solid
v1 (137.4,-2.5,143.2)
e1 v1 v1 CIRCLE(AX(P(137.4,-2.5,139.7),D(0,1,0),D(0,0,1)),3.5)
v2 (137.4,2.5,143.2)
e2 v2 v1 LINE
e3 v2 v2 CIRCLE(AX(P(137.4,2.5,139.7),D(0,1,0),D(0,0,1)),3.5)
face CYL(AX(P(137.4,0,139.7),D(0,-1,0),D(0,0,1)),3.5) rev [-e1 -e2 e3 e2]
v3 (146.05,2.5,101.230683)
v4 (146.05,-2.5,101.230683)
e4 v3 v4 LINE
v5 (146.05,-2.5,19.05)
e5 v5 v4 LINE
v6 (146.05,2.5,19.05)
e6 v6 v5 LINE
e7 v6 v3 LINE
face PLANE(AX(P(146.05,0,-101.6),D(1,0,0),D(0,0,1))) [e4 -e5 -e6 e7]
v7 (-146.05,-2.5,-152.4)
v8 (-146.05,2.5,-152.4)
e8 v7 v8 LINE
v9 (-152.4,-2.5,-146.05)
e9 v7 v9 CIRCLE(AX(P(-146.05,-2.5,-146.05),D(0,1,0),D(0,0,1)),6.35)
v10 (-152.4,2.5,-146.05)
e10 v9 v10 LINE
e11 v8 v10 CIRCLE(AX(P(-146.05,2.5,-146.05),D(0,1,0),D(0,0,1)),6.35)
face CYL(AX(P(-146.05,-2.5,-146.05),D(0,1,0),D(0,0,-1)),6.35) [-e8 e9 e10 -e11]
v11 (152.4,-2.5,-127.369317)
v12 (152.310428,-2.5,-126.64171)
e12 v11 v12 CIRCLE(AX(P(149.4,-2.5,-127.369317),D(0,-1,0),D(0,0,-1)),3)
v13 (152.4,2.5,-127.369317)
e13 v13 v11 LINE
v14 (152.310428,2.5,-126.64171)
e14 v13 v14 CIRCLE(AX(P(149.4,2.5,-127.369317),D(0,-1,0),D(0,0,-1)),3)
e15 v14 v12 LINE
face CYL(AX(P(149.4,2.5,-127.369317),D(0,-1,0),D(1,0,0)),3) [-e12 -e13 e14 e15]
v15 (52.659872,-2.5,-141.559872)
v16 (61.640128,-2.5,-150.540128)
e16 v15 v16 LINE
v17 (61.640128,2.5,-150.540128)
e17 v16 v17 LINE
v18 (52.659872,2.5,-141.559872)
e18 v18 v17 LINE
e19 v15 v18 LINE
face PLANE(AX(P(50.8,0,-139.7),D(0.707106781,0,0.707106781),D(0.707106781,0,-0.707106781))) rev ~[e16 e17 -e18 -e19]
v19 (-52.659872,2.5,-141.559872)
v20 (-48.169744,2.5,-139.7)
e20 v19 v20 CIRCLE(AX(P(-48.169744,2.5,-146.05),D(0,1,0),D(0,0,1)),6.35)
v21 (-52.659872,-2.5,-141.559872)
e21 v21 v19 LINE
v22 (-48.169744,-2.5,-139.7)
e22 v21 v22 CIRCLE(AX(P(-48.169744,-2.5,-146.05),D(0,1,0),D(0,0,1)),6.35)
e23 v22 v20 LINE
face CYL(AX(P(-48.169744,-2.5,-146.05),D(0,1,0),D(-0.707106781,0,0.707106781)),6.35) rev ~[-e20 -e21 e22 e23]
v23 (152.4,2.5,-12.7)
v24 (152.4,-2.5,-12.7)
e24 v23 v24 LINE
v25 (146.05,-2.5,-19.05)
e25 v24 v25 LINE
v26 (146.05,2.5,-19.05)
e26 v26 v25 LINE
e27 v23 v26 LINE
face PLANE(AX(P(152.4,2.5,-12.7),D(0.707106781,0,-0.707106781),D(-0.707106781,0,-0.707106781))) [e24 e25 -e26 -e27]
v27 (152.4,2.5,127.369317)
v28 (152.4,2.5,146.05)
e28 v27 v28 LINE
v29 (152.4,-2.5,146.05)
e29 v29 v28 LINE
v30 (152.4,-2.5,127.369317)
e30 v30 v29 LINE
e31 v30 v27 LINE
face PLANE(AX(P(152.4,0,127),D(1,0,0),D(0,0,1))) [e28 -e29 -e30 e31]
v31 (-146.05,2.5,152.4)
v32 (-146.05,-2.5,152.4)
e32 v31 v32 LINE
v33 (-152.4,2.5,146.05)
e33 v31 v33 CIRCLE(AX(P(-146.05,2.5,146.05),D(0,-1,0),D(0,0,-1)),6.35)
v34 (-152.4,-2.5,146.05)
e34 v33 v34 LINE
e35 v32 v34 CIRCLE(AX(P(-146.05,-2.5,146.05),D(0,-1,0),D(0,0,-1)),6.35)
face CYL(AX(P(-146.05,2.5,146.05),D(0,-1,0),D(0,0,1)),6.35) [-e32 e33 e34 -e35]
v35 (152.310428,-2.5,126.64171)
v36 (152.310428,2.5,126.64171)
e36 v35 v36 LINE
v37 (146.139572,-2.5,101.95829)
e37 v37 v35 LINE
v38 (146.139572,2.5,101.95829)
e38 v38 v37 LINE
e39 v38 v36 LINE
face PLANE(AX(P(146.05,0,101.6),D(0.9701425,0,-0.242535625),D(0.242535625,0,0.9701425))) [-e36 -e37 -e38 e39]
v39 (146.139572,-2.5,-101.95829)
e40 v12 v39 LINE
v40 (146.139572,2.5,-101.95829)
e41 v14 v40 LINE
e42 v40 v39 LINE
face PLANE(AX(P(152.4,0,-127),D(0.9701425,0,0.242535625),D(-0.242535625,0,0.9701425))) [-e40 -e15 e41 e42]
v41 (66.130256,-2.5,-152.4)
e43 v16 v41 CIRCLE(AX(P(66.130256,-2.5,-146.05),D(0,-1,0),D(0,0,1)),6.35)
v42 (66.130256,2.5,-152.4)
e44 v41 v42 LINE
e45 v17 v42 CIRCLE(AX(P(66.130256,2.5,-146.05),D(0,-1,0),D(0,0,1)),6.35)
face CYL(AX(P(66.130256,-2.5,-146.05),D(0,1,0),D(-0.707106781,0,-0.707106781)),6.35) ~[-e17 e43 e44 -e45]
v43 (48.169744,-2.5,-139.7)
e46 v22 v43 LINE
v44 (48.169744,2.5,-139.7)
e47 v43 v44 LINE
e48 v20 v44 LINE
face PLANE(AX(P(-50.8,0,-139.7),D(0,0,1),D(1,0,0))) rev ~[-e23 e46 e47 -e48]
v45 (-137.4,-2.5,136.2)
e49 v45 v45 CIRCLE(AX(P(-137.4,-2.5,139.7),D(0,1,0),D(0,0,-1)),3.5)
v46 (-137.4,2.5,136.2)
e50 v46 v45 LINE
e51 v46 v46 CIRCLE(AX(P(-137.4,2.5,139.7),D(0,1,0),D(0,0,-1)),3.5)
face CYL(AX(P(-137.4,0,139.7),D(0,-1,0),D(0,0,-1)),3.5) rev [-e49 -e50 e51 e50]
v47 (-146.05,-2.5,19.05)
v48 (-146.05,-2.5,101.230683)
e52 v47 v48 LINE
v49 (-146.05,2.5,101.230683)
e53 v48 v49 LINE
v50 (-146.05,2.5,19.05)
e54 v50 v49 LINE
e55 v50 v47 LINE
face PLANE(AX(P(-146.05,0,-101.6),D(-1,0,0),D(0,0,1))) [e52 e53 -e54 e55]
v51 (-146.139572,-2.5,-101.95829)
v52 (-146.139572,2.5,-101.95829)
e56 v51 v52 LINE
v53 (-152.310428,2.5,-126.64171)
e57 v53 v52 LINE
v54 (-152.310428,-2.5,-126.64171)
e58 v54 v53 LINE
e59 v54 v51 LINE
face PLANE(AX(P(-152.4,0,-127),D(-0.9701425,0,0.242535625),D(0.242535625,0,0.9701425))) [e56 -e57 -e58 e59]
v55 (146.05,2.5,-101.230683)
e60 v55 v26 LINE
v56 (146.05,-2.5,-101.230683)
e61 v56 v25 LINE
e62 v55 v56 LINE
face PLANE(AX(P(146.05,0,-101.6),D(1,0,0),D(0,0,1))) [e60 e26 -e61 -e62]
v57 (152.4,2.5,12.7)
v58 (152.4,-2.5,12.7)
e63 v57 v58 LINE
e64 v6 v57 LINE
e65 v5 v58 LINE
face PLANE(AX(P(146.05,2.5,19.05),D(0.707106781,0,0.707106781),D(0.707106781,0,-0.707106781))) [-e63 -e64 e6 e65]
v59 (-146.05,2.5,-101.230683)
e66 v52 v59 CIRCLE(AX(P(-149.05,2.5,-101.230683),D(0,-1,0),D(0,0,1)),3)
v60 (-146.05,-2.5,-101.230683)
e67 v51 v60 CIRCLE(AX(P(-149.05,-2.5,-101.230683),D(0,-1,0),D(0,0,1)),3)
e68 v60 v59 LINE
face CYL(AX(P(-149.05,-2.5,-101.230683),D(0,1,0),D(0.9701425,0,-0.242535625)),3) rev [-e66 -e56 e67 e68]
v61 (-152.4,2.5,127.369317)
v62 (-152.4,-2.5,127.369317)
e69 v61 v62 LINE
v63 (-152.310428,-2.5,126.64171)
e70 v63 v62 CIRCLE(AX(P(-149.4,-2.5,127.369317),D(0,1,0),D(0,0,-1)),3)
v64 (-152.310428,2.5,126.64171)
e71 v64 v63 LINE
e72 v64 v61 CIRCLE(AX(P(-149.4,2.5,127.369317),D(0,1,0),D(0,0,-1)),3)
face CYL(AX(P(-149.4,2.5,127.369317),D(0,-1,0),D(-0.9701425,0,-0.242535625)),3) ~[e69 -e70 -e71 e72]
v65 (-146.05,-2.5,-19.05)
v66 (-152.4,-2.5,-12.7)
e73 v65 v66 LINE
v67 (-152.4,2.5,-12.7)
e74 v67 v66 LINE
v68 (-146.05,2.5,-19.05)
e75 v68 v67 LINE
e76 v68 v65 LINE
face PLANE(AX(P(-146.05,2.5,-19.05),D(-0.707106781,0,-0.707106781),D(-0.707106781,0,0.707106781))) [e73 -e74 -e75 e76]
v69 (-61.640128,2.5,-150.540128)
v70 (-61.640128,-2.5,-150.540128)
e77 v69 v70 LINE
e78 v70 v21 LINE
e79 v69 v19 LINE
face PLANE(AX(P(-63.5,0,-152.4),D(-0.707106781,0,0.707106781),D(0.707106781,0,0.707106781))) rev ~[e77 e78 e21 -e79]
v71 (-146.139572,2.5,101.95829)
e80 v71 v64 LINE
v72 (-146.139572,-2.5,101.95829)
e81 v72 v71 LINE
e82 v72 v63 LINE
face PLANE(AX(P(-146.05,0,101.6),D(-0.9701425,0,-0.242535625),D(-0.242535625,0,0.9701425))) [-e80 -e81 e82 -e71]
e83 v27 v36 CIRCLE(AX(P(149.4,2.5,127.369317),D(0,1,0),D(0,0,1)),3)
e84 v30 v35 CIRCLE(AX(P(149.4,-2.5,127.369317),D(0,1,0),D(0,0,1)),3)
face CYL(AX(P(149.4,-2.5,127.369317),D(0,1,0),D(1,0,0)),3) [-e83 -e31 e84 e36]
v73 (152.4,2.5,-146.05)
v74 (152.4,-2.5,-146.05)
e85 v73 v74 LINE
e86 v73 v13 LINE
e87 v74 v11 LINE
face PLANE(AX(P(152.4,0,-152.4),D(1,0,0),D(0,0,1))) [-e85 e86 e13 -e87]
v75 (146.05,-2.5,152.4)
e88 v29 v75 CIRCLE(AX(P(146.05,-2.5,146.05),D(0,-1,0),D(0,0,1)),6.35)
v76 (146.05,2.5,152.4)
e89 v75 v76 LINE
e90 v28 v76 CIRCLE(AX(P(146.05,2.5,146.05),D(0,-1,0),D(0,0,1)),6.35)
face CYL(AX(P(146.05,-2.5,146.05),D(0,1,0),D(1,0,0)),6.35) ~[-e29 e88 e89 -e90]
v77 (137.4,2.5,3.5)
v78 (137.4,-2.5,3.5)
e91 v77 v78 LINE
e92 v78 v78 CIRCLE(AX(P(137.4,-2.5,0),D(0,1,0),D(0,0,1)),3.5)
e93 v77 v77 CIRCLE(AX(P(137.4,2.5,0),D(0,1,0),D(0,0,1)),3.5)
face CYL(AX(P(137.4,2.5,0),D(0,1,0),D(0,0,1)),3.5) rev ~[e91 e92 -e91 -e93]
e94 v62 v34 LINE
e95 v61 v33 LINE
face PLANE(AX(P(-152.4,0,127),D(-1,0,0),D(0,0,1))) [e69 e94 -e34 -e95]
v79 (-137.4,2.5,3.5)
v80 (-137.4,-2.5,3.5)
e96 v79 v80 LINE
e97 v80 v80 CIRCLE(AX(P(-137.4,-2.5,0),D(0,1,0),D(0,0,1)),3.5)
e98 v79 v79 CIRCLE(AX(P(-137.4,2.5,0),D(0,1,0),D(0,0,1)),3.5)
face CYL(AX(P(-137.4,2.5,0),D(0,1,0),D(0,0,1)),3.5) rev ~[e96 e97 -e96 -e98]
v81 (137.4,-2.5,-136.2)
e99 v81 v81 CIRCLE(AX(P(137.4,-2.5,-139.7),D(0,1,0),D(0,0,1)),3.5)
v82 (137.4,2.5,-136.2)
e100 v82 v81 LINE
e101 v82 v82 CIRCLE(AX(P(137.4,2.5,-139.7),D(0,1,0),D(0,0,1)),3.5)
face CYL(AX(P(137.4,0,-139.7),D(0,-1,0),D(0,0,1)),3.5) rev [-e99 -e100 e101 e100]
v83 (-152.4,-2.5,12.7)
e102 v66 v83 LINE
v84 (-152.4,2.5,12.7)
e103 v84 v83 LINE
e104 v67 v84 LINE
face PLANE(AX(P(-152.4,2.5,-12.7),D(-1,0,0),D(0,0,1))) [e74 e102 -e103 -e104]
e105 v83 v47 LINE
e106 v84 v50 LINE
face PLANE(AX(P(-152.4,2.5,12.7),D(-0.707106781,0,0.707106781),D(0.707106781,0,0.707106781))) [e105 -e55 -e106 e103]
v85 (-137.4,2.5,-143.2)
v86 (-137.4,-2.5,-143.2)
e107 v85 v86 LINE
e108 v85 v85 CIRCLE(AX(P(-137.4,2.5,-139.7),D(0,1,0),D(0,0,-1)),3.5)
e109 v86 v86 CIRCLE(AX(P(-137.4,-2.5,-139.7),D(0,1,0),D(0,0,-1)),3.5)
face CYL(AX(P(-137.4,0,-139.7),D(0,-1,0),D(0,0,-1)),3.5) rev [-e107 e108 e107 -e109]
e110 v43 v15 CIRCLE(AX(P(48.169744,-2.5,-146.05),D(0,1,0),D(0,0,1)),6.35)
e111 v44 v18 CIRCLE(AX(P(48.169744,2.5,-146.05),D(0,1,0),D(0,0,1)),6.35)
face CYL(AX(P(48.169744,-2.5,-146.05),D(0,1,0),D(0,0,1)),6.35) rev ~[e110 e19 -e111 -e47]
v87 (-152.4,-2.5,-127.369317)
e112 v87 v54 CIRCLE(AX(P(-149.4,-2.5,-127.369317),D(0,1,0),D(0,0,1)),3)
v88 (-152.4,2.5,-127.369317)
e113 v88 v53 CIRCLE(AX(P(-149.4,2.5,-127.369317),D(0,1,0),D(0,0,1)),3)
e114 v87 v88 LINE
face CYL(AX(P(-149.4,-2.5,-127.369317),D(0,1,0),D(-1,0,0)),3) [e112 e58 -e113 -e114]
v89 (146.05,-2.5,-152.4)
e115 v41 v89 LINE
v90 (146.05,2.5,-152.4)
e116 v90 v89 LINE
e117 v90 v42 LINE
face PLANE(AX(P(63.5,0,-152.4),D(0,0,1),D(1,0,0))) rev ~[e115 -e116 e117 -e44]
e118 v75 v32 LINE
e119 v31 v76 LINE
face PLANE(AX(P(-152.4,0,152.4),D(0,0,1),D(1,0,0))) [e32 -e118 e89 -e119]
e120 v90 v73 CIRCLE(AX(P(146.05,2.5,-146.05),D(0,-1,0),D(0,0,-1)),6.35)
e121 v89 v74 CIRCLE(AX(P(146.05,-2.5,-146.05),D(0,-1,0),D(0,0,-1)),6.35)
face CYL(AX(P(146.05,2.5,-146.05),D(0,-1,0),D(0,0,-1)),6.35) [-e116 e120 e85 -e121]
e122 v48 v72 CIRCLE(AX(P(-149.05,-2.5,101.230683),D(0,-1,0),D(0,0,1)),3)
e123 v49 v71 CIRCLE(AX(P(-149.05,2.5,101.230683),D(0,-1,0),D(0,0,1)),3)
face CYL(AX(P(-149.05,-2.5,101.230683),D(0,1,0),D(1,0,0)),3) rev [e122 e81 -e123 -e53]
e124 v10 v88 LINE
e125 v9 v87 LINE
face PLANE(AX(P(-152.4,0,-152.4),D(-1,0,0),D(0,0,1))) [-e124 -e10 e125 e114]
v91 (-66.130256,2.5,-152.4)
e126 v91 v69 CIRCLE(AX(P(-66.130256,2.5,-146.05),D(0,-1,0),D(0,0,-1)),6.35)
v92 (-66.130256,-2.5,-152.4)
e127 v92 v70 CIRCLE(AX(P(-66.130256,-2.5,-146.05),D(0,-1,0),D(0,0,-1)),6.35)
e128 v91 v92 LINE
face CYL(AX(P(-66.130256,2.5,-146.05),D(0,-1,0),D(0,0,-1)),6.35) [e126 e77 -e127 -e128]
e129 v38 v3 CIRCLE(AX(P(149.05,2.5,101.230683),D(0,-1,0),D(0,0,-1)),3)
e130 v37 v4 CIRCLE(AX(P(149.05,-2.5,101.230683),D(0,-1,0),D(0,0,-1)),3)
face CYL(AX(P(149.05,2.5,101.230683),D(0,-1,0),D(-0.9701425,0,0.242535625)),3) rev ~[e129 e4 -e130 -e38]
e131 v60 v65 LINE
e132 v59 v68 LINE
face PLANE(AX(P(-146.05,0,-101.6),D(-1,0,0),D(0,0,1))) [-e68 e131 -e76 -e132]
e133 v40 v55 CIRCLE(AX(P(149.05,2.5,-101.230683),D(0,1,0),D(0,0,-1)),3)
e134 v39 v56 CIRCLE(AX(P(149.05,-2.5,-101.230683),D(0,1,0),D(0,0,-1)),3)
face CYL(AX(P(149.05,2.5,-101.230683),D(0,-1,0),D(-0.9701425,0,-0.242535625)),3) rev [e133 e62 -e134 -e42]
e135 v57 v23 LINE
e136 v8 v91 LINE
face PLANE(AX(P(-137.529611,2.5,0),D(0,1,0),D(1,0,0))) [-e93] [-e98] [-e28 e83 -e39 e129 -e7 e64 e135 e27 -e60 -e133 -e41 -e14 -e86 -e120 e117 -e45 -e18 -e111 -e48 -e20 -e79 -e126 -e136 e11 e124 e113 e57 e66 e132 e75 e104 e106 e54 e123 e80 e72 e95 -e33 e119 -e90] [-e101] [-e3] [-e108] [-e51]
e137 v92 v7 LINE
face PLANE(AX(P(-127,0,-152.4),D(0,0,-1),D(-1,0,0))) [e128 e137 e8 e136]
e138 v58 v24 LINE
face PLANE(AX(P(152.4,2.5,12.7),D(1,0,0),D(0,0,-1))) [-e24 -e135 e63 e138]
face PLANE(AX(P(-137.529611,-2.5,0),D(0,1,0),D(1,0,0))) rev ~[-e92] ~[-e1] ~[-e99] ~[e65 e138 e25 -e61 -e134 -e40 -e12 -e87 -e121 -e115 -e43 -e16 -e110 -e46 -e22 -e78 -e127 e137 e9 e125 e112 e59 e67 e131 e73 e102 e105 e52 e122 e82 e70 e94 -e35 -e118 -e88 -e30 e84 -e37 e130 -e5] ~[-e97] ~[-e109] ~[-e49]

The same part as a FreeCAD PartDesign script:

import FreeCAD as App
import Part
import Sketcher

V = App.Vector
Q = App.Units.Quantity


def edges_at(feature, points):
    """Names of the edges that pass closest to the given points."""
    edges = feature.Shape.Edges
    near = lambda p: min(range(len(edges)), key=lambda i: edges[i].distToShape(Part.Vertex(*p))[0])
    return sorted({f"Edge{near(p) + 1}" for p in points})


def add_polygon(sketch, points):
    """Adds a closed chain of lines whose ends are joined by coincident constraints."""
    first, n = sketch.GeometryCount, len(points)
    for a, b in zip(points, points[1:] + points[:1]):
        sketch.addGeometry(Part.LineSegment(App.Vector(*a, 0), App.Vector(*b, 0)), False)
    for i in range(n):
        sketch.addConstraint(Sketcher.Constraint("Coincident", first + i, 2, first + (i + 1) % n, 1))

doc = App.newDocument("Part")
body = doc.addObject("PartDesign::Body", "Body")

# Sketch on XZ plane
sketch1 = body.newObject("Sketcher::SketchObject", "Sketch")
sketch1.AttachmentSupport = (doc.getObject("XZ_Plane"), [""])
sketch1.MapMode = "FlatFace"
add_polygon(sketch1, [(127, -152), (64, -152), (51, -140), (-51, -140), (-64, -152), (-127, -152), (-127, 152), (127, 152)])  # lines 0-7
sketch1.addConstraint([
    Sketcher.Constraint("Horizontal", 0),
    Sketcher.Constraint("Horizontal", 2),
    Sketcher.Constraint("Horizontal", 4),
    Sketcher.Constraint("Vertical", 5),
    Sketcher.Constraint("Horizontal", 6),
    Sketcher.Constraint("Vertical", 7),
    Sketcher.Constraint("Symmetric", 4, 2, 6, 2, -1, 1),
    Sketcher.Constraint("Symmetric", 0, 2, 3, 2, -2),
    Sketcher.Constraint("Perpendicular", 1, 3),
    Sketcher.Constraint("Equal", 1, 3),
    Sketcher.Constraint("DistanceX", 2, 2, 2, 1, Q("4 in")),
    Sketcher.Constraint("DistanceX", 6, 1, 6, 2, Q("10 in")),
    Sketcher.Constraint("DistanceY", 5, 1, 5, 2, Q("12 in")),
    Sketcher.Constraint("DistanceX", 0, 2, 0, 1, Q("2.5 in")),
])
pad1 = body.newObject("PartDesign::Pad", "Pad")
pad1.Profile = sketch1
pad1.Length = 5
pad1.Midplane = True

# Sketch on XZ plane
sketch2 = body.newObject("Sketcher::SketchObject", "Sketch001")
sketch2.AttachmentSupport = (doc.getObject("XZ_Plane"), [""])
sketch2.MapMode = "FlatFace"
add_polygon(sketch2, [(152.4, -152.4), (127, -152.4), (127, 152.4), (152.4, 152.4), (152.4, 127), (146.1, 101.6), (146.1, -101.6), (152.4, -127)])  # lines 0-7
sketch2.addGeometry(Part.Circle(V(137.4, 139.7, 0), V(0, 0, 1), 3.5), False)  # 8
sketch2.addGeometry(Part.Circle(V(137.4, -139.7, 0), V(0, 0, 1), 3.5), False)  # 9
add_polygon(sketch2, [(-127, -152.4), (-152.4, -152.4), (-152.4, -127), (-146.1, -101.6), (-146.1, 101.6), (-152.4, 127), (-152.4, 152.4), (-127, 152.4)])  # lines 10-17
sketch2.addGeometry(Part.Circle(V(-137.4, 139.7, 0), V(0, 0, 1), 3.5), False)  # 18
sketch2.addGeometry(Part.Circle(V(-137.4, -139.7, 0), V(0, 0, 1), 3.5), False)  # 19
sketch2.addConstraint([
    Sketcher.Constraint("Horizontal", 0),
    Sketcher.Constraint("Vertical", 1),
    Sketcher.Constraint("Horizontal", 2),
    Sketcher.Constraint("Vertical", 3),
    Sketcher.Constraint("Vertical", 5),
    Sketcher.Constraint("Vertical", 7),
    Sketcher.Constraint("Horizontal", 10),
    Sketcher.Constraint("Vertical", 11),
    Sketcher.Constraint("Vertical", 13),
    Sketcher.Constraint("Vertical", 15),
    Sketcher.Constraint("Horizontal", 16),
    Sketcher.Constraint("Vertical", 17),
    Sketcher.Constraint("Equal", 8, 9),
    Sketcher.Constraint("Equal", 9, 18),
    Sketcher.Constraint("Equal", 18, 19),
    Sketcher.Constraint("Symmetric", 9, 3, 18, 3, -1, 1),
    Sketcher.Constraint("Symmetric", 8, 3, 19, 3, -1, 1),
    Sketcher.Constraint("Symmetric", 2, 2, 10, 2, -1, 1),
    Sketcher.Constraint("Symmetric", 4, 2, 12, 2, -1, 1),
    Sketcher.Constraint("Symmetric", 6, 2, 14, 2, -1, 1),
    Sketcher.Constraint("Symmetric", 0, 2, 16, 2, -1, 1),
    Sketcher.Constraint("Symmetric", 8, 3, 18, 3, -2),
    Sketcher.Constraint("Symmetric", 7, 2, 10, 2, -2),
    Sketcher.Constraint("Parallel", 4, 12),
    Sketcher.Constraint("Parallel", 6, 14),
    Sketcher.Constraint("Horizontal", 6, 2, 11, 2),
    Sketcher.Constraint("Horizontal", 5, 2, 12, 2),
    Sketcher.Constraint("Equal", 16, 3),
    Sketcher.Constraint("DistanceX", 0, 2, 0, 1, Q("1 in")),
    Sketcher.Constraint("DistanceY", 1, 1, 1, 2, Q("12 in")),
    Sketcher.Constraint("DistanceY", 5, 2, 5, 1, Q("8 in")),
    Sketcher.Constraint("DistanceX", -1, 1, 0, 2, Q("5 in")),
    Sketcher.Constraint("DistanceY", 9, 3, 8, 3, Q("11 in")),
    Sketcher.Constraint("Diameter", 8, Q("7 mm")),
    Sketcher.Constraint("DistanceX", -1, 1, 4, 2, Q("5.75 in")),
    Sketcher.Constraint("DistanceX", -1, 1, 8, 3, Q("137.4 mm")),
])
pad2 = body.newObject("PartDesign::Pad", "Pad001")
pad2.Profile = sketch2
pad2.Length = 5
pad2.Midplane = True
doc.recompute()

fillet = body.newObject("PartDesign::Fillet", "Fillet")
fillet.Base = (pad2, edges_at(pad2, [
    (152.4, 0, 152.4),
    (152.4, 0, -152.4),
    (-152.4, 0, -152.4),
    (-152.4, 0, 152.4),
]))
fillet.Radius = Q("0.25 in")
doc.recompute()

fillet2 = body.newObject("PartDesign::Fillet", "Fillet001")
fillet2.Base = (fillet, edges_at(fillet, [
    (-63.5, 0, -152.4),
    (-50.8, 0, -139.7),
    (50.8, 0, -139.7),
    (63.5, 0, -152.4),
]))
fillet2.Radius = Q("0.25 in")
doc.recompute()

fillet3 = body.newObject("PartDesign::Fillet", "Fillet002")
fillet3.Base = (fillet2, edges_at(fillet2, [
    (152.4, 0, 127),
    (146.05, 0, 101.6),
    (146.05, 0, -101.6),
    (152.4, 0, -127),
    (-152.4, 0, -127),
    (-146.05, 0, -101.6),
    (-146.05, 0, 101.6),
    (-152.4, 0, 127),
]))
fillet3.Radius = 3

# Sketch on XZ plane
sketch3 = body.newObject("Sketcher::SketchObject", "Sketch002")
sketch3.AttachmentSupport = (doc.getObject("XZ_Plane"), [""])
sketch3.MapMode = "FlatFace"
sketch3.AttachmentOffset = App.Placement(V(0, 0, -2.5), App.Rotation())
add_polygon(sketch3, [(-146, -19), (-152, -13), (-152, 13), (-146, 19)])  # lines 0-3
add_polygon(sketch3, [(152, 13), (152, -13), (146, -19), (146, 19)])  # lines 4-7
sketch3.addConstraint([
    Sketcher.Constraint("Vertical", 1),
    Sketcher.Constraint("Vertical", 3),
    Sketcher.Constraint("Vertical", 4),
    Sketcher.Constraint("Vertical", 6),
    Sketcher.Constraint("Symmetric", 1, 2, 4, 2, -1, 1),
    Sketcher.Constraint("Symmetric", 2, 2, 5, 2, -1, 1),
    Sketcher.Constraint("Perpendicular", 0, 2),
    Sketcher.Constraint("Perpendicular", 5, 7),
    Sketcher.Constraint("Horizontal", 0, 2, 4, 2),
    Sketcher.Constraint("Horizontal", 3, 2, 5, 2),
    Sketcher.Constraint("Horizontal", 2, 2, 6, 2),
    Sketcher.Constraint("DistanceY", 1, 1, 1, 2, Q("1 in")),
    Sketcher.Constraint("DistanceY", 3, 2, 3, 1, Q("1.5 in")),
    Sketcher.Constraint("DistanceX", 0, 2, -1, 1, Q("6 in")),
])
pad3 = body.newObject("PartDesign::Pad", "Pad002")
pad3.Profile = sketch3
pad3.Length = 5

# Sketch on XZ plane
sketch4 = body.newObject("Sketcher::SketchObject", "Sketch003")
sketch4.AttachmentSupport = (doc.getObject("XZ_Plane"), [""])
sketch4.MapMode = "FlatFace"
sketch4.AttachmentOffset = App.Placement(V(0, 0, -2.5), App.Rotation())
sketch4.addGeometry(Part.Circle(V(-137.4, 0, 0), V(0, 0, 1), 3.5), False)
sketch4.addConstraint([
    Sketcher.Constraint("PointOnObject", 0, 3, -1),
    Sketcher.Constraint("Diameter", 0, Q("7 mm")),
    Sketcher.Constraint("DistanceX", 0, 3, -1, 1, Q("137.4 mm")),
])
pocket1 = body.newObject("PartDesign::Pocket", "Pocket")
pocket1.Profile = sketch4
pocket1.Type = "UpToFirst"
pocket1.Reversed = True

# Sketch on XZ plane
sketch5 = body.newObject("Sketcher::SketchObject", "Sketch004")
sketch5.AttachmentSupport = (doc.getObject("XZ_Plane"), [""])
sketch5.MapMode = "FlatFace"
sketch5.AttachmentOffset = App.Placement(V(0, 0, -2.5), App.Rotation())
sketch5.addGeometry(Part.Circle(V(137.4, 0, 0), V(0, 0, 1), 3.5), False)
sketch5.addConstraint([
    Sketcher.Constraint("PointOnObject", 0, 3, -1),
    Sketcher.Constraint("Diameter", 0, Q("7 mm")),
    Sketcher.Constraint("DistanceX", -1, 1, 0, 3, Q("137.4 mm")),
])
pocket2 = body.newObject("PartDesign::Pocket", "Pocket001")
pocket2.Profile = sketch5
pocket2.Type = "UpToFirst"
pocket2.Reversed = True

doc.recompute()
